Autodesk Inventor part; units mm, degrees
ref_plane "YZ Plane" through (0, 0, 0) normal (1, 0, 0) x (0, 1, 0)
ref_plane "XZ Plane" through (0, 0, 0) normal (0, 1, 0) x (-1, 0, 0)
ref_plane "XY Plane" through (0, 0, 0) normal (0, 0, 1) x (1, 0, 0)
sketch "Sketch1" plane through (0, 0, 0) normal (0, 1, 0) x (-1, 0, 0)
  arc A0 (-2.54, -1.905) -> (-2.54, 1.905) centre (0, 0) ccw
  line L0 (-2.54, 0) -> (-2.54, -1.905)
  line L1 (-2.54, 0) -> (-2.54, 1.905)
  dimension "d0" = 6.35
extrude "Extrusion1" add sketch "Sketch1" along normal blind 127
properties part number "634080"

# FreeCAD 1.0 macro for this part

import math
import FreeCAD as App
import Part
import Sketcher
Q = App.Units.Quantity

doc = App.newDocument("Part")
body = doc.addObject("PartDesign::Body", "Body")

# Sketch on XZ plane
sketch1 = doc.addObject("Sketcher::SketchObject", "Sketch")
body.addObject(sketch1)
sketch1.AttachmentSupport = (doc.XZ_Plane, [""])
sketch1.MapMode = "FlatFace"
sketch1.addGeometry(Part.LineSegment(App.Vector(2.5, 1.9, 0), App.Vector(2.5, -1.9, 0)), False)
sketch1.addGeometry(Part.ArcOfCircle(Part.Circle(App.Vector(0, 0, 0), App.Vector(0, 0, 1), 3.2), math.radians(37), math.radians(323)), False)
sketch1.addConstraint(Sketcher.Constraint("Coincident", 0, 1, 1, 1))
sketch1.addConstraint(Sketcher.Constraint("Coincident", 1, 2, 0, 2))
sketch1.addConstraint(Sketcher.Constraint("Vertical", 0))
sketch1.addConstraint(Sketcher.Constraint("Coincident", 1, 3, -1, 1))
sketch1.addConstraint(Sketcher.Constraint("Radius", 1, Q("0.125 in")))
sketch1.addConstraint(Sketcher.Constraint("DistanceY", 0, 2, 0, 1, Q("0.15 in")))
pad1 = doc.addObject("PartDesign::Pad", "Pad")
body.addObject(pad1)
pad1.Profile = sketch1
pad1.Length = Q("5 in")
pad1.Reversed = True

doc.recompute()
